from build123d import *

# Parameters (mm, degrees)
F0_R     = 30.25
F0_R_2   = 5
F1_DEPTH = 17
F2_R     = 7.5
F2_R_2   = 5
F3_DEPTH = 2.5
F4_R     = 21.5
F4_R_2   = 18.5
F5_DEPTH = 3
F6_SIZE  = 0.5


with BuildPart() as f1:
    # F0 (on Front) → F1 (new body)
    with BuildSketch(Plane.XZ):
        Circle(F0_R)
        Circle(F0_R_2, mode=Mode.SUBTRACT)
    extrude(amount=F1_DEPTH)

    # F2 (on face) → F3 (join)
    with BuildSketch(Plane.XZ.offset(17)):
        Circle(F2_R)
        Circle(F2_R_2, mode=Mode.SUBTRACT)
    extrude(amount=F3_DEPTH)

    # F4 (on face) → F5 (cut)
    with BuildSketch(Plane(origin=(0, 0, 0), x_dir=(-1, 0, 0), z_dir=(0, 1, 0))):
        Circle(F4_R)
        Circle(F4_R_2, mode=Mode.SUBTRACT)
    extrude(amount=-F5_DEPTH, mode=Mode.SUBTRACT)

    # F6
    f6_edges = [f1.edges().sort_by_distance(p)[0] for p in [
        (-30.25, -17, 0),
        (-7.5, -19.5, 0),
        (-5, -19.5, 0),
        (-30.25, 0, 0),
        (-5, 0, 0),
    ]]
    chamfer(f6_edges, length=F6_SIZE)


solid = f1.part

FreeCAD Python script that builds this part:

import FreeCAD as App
import Part
import Sketcher


def edges_at(feature, points):
    """Names of the edges that pass closest to the given points."""
    edges = feature.Shape.Edges
    near = lambda p: min(range(len(edges)), key=lambda i: edges[i].distToShape(Part.Vertex(*p))[0])
    return sorted({f"Edge{near(p) + 1}" for p in points})

doc = App.newDocument("Part")
params = doc.addObject("Spreadsheet::Sheet", "Params")
for row, (alias, value) in enumerate([
    ("sketch1_diameter", "10 mm"),
    ("sketch1_diameter2", "60.5 mm"),
    ("pad1_length", "17 mm"),
    ("sketch2_diameter", "15 mm"),
    ("sketch2_diameter2", "10 mm"),
    ("pad2_length", "2.5 mm"),
    ("sketch3_diameter", "43 mm"),
    ("sketch3_diameter2", "37 mm"),
    ("pocket1_length", "3 mm"),
    ("chamfer_size", "0.5 mm"),
], start=1):
    params.set(f"A{row}", alias)
    params.set(f"B{row}", "=" + value)
    params.setAlias(f"B{row}", alias)

body = doc.addObject("PartDesign::Body", "Body")

# Sketch on XZ plane
sketch1 = doc.addObject("Sketcher::SketchObject", "Sketch")
body.addObject(sketch1)
sketch1.AttachmentSupport = (doc.XZ_Plane, [""])
sketch1.MapMode = "FlatFace"
sketch1.addGeometry(Part.Circle(App.Vector(0, 0, 0), App.Vector(0, 0, 1), 30), False)
sketch1.addGeometry(Part.Circle(App.Vector(0, 0, 0), App.Vector(0, 0, 1), 5), False)
sketch1.addConstraint(Sketcher.Constraint("Coincident", 0, 3, -1, 1))
sketch1.addConstraint(Sketcher.Constraint("Coincident", 1, 3, -1, 1))
sketch1.addConstraint(Sketcher.Constraint("Diameter", 1, 10.0))
sketch1.addConstraint(Sketcher.Constraint("Diameter", 0, 60.5))
sketch1.setExpression("Constraints[2]", "Params.sketch1_diameter")
sketch1.setExpression("Constraints[3]", "Params.sketch1_diameter2")
pad1 = doc.addObject("PartDesign::Pad", "Pad")
body.addObject(pad1)
pad1.Profile = sketch1
pad1.setExpression("Length", "Params.pad1_length")

# Sketch on XZ plane
sketch2 = doc.addObject("Sketcher::SketchObject", "Sketch001")
body.addObject(sketch2)
sketch2.AttachmentSupport = (doc.XZ_Plane, [""])
sketch2.MapMode = "FlatFace"
sketch2.AttachmentOffset = App.Placement(App.Vector(0, 0, 17), App.Rotation())
sketch2.addGeometry(Part.Circle(App.Vector(0, 0, 0), App.Vector(0, 0, 1), 8), False)
sketch2.addGeometry(Part.Circle(App.Vector(0, 0, 0), App.Vector(0, 0, 1), 5), False)
sketch2.addConstraint(Sketcher.Constraint("Coincident", 0, 3, -1, 1))
sketch2.addConstraint(Sketcher.Constraint("Coincident", 1, 3, -1, 1))
sketch2.addConstraint(Sketcher.Constraint("Diameter", 0, 15.0))
sketch2.addConstraint(Sketcher.Constraint("Diameter", 1, 10.0))
sketch2.setExpression("Constraints[2]", "Params.sketch2_diameter")
sketch2.setExpression("Constraints[3]", "Params.sketch2_diameter2")
pad2 = doc.addObject("PartDesign::Pad", "Pad001")
body.addObject(pad2)
pad2.Profile = sketch2
pad2.setExpression("Length", "Params.pad2_length")

# Sketch on XZ plane
sketch3 = doc.addObject("Sketcher::SketchObject", "Sketch002")
body.addObject(sketch3)
sketch3.AttachmentSupport = (doc.XZ_Plane, [""])
sketch3.MapMode = "FlatFace"
sketch3.addGeometry(Part.Circle(App.Vector(0, 0, 0), App.Vector(0, 0, 1), 22), False)
sketch3.addGeometry(Part.Circle(App.Vector(0, 0, 0), App.Vector(0, 0, 1), 18), False)
sketch3.addConstraint(Sketcher.Constraint("Coincident", 0, 3, -1, 1))
sketch3.addConstraint(Sketcher.Constraint("Coincident", 1, 3, -1, 1))
sketch3.addConstraint(Sketcher.Constraint("Diameter", 0, 43.0))
sketch3.addConstraint(Sketcher.Constraint("Diameter", 1, 37.0))
sketch3.setExpression("Constraints[2]", "Params.sketch3_diameter")
sketch3.setExpression("Constraints[3]", "Params.sketch3_diameter2")
pocket1 = doc.addObject("PartDesign::Pocket", "Pocket")
body.addObject(pocket1)
pocket1.Profile = sketch3
pocket1.setExpression("Length", "Params.pocket1_length")
pocket1.Reversed = True
doc.recompute()

chamfer = doc.addObject("PartDesign::Chamfer", "Chamfer")
body.addObject(chamfer)
chamfer.Base = (pocket1, edges_at(pocket1, [
    (-30.25, -17, 0),
    (-7.5, -19.5, 0),
    (-5, -19.5, 0),
    (-30.25, 0, 0),
    (-5, 0, 0),
]))
chamfer.setExpression("Size", "Params.chamfer_size")

doc.recompute()
